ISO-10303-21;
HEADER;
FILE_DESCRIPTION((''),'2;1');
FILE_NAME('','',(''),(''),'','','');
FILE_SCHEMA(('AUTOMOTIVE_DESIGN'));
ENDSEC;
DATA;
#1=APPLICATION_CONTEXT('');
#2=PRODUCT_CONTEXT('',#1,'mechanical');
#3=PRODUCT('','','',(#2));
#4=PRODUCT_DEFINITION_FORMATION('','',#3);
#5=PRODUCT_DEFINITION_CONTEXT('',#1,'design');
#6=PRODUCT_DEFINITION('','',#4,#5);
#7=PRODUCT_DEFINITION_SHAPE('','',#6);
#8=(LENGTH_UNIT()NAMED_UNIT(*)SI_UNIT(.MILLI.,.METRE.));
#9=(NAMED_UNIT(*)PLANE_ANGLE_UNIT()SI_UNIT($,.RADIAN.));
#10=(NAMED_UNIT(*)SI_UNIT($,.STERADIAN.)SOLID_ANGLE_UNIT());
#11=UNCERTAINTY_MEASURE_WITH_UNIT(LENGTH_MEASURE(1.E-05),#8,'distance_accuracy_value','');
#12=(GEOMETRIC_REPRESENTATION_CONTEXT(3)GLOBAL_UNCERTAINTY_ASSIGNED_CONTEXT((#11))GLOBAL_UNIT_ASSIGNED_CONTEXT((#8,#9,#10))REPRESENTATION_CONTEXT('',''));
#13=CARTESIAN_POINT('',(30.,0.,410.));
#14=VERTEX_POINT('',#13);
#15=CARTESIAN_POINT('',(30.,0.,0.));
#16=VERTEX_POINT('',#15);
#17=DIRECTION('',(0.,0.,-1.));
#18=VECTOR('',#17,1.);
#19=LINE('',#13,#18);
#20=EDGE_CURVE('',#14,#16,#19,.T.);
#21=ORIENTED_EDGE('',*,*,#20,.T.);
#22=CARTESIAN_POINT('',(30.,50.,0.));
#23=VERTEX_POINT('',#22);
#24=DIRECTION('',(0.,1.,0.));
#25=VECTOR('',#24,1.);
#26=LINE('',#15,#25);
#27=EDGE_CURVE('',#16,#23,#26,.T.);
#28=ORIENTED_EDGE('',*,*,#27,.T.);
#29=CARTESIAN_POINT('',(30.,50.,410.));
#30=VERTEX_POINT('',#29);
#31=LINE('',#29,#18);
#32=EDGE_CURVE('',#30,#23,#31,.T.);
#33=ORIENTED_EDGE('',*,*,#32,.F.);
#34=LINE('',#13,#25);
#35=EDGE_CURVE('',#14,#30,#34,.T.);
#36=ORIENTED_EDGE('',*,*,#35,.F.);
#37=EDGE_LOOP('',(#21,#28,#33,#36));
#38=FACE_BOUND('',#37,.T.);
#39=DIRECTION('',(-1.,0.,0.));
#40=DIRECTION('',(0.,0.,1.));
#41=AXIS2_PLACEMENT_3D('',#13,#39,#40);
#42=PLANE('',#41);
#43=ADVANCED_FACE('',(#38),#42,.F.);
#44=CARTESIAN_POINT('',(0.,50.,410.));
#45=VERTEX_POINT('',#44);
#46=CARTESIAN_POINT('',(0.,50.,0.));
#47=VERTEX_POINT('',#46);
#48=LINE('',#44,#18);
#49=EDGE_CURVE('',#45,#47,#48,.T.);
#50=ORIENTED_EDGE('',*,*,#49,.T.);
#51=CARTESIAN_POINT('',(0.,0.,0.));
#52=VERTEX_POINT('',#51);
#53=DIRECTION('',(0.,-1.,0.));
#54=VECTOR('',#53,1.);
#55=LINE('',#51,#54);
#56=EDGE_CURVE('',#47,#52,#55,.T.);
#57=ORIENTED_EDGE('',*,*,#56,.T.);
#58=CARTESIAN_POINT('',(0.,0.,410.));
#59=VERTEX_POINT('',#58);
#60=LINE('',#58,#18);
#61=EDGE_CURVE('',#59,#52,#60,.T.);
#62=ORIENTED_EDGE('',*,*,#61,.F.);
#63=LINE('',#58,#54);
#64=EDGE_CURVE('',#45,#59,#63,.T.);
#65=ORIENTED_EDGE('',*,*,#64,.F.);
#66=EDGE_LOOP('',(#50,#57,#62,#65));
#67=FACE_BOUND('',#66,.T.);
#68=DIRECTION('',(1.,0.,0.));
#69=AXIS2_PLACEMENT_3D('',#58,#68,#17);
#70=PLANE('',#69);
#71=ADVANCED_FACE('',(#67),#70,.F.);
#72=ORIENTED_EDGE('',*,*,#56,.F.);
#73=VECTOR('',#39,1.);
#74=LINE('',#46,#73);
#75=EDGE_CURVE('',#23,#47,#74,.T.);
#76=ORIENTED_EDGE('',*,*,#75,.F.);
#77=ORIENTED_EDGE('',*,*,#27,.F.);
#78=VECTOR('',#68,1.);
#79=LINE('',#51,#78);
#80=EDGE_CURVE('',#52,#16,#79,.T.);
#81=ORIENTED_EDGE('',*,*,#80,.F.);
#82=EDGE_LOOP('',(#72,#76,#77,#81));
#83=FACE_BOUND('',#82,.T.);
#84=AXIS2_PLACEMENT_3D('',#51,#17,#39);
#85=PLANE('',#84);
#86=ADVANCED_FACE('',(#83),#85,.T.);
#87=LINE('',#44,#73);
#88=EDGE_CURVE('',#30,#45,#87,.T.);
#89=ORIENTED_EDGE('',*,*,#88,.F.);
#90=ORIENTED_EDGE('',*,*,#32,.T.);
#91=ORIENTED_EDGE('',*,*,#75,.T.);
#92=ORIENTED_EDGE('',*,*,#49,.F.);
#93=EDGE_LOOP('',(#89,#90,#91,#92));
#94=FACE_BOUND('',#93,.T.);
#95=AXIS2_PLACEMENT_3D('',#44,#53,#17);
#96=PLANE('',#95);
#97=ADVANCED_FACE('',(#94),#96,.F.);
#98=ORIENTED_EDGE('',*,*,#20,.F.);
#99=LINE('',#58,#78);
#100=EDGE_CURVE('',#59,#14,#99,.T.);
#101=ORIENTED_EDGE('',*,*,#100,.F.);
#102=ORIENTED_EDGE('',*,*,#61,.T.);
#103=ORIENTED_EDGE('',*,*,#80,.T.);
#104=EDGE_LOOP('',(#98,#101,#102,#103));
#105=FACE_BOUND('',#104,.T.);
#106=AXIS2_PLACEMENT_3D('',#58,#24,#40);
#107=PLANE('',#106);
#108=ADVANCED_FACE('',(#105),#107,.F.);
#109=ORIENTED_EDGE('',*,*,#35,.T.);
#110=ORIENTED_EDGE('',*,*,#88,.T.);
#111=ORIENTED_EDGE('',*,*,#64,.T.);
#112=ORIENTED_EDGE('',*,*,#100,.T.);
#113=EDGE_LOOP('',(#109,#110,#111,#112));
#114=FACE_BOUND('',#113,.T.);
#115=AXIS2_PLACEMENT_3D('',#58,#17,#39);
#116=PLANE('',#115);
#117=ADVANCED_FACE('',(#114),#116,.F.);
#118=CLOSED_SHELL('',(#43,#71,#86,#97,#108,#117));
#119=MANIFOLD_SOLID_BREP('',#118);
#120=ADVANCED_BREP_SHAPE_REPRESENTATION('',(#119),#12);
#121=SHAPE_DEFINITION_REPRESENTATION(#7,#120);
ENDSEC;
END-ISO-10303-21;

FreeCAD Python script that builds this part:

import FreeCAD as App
import Part
import Sketcher
from FreeCAD import Vector

doc = App.newDocument("Part")
body = doc.addObject("PartDesign::Body", "Body")

# Sketch on XY plane
sketch1 = doc.addObject("Sketcher::SketchObject", "Sketch")
body.addObject(sketch1)
sketch1.AttachmentSupport = (doc.XY_Plane, [""])
sketch1.MapMode = "FlatFace"
sketch1.addGeometry([
    Part.LineSegment(Vector(0, 50, 0), Vector(0, 0, 0)),
    Part.LineSegment(Vector(0, 0, 0), Vector(30, 0, 0)),
    Part.LineSegment(Vector(30, 0, 0), Vector(30, 50, 0)),
    Part.LineSegment(Vector(30, 50, 0), Vector(0, 50, 0)),
], False)
sketch1.addConstraint([
    Sketcher.Constraint("Coincident", 0, 2, 1, 1),
    Sketcher.Constraint("Coincident", 1, 2, 2, 1),
    Sketcher.Constraint("Coincident", 2, 2, 3, 1),
    Sketcher.Constraint("Coincident", 3, 2, 0, 1),
    Sketcher.Constraint("Vertical", 0),
    Sketcher.Constraint("Horizontal", 1),
    Sketcher.Constraint("Vertical", 2),
    Sketcher.Constraint("Horizontal", 3),
    Sketcher.Constraint("Coincident", 0, 2, -1, 1),
    Sketcher.Constraint("DistanceX", 1, 1, 1, 2, 30.0),
    Sketcher.Constraint("DistanceY", 0, 2, 0, 1, 50.0),
])
pad1 = doc.addObject("PartDesign::Pad", "Pad")
body.addObject(pad1)
pad1.Profile = sketch1
pad1.Length = 410

doc.recompute()
